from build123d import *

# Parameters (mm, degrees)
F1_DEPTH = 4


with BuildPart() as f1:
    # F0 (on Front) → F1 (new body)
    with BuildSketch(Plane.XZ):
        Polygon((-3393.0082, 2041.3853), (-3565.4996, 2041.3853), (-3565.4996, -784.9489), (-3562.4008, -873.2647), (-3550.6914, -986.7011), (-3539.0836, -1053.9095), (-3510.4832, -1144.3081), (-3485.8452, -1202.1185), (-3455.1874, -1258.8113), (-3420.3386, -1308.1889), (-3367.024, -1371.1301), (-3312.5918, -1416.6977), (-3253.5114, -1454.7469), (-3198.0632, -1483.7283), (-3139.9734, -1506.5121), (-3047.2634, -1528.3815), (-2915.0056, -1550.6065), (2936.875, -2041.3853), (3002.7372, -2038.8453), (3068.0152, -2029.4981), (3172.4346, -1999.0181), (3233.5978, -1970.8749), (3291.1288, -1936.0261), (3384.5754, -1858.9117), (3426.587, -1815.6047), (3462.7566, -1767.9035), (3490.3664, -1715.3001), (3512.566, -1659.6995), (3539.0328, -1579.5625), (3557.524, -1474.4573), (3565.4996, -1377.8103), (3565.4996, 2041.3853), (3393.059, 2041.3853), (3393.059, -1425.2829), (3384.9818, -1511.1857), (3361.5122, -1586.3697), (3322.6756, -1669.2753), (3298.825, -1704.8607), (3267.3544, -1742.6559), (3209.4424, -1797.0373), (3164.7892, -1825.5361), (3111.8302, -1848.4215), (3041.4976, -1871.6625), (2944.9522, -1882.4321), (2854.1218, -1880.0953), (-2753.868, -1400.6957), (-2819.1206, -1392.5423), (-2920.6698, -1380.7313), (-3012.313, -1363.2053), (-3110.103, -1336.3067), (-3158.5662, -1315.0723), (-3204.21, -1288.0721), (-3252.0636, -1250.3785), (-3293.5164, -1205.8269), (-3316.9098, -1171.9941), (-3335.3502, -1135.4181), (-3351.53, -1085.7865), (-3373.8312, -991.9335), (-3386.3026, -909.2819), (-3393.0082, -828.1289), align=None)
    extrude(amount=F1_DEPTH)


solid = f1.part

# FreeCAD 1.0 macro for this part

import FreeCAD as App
import Part
import Sketcher
Q = App.Units.Quantity


def add_polygon(sketch, points):
    """Adds a closed chain of lines whose ends are joined by coincident constraints."""
    first, n = sketch.GeometryCount, len(points)
    for a, b in zip(points, points[1:] + points[:1]):
        sketch.addGeometry(Part.LineSegment(App.Vector(*a, 0), App.Vector(*b, 0)), False)
    for i in range(n):
        sketch.addConstraint(Sketcher.Constraint("Coincident", first + i, 2, first + (i + 1) % n, 1))

doc = App.newDocument("Part")
params = doc.addObject("Spreadsheet::Sheet", "Params")
for row, (alias, value) in enumerate([
    ("sketch1_width", "6.791 in"),
    ("sketch1_width2", "6.789 in"),
    ("sketch1_height", "111.273 in"),
    ("sketch1_height2", "134.614 in"),
    ("sketch1_height3", "136.483 in"),
    ("pad1_length", "4 mm"),
], start=1):
    params.set(f"A{row}", alias)
    params.set(f"B{row}", "=" + value)
    params.setAlias(f"B{row}", alias)

body = doc.addObject("PartDesign::Body", "Body")

# Sketch on XZ plane
sketch1 = body.newObject("Sketcher::SketchObject", "Sketch")
sketch1.AttachmentSupport = (doc.getObject("XZ_Plane"), [""])
sketch1.MapMode = "FlatFace"
add_polygon(sketch1, [(-3393, 2041), (-3565, 2041), (-3565, -785), (-3562, -873), (-3551, -987), (-3539, -1054), (-3510, -1144), (-3486, -1202), (-3455, -1259), (-3420, -1308), (-3367, -1371), (-3313, -1417), (-3254, -1455), (-3198, -1484), (-3140, -1507), (-3047, -1528), (-2915, -1551), (2937, -2041), (3003, -2039), (3068, -2029), (3172, -1999), (3234, -1971), (3291, -1936), (3385, -1859), (3427, -1816), (3463, -1768), (3490, -1715), (3513, -1660), (3539, -1580), (3558, -1474), (3565, -1378), (3565, 2041), (3393, 2041), (3393, -1425), (3385, -1511), (3362, -1586), (3323, -1669), (3299, -1705), (3267, -1743), (3209, -1797), (3165, -1826), (3112, -1848), (3041, -1872), (2945, -1882), (2854, -1880), (-2754, -1401), (-2819, -1393), (-2921, -1381), (-3012, -1363), (-3110, -1336), (-3159, -1315), (-3204, -1288), (-3252, -1250), (-3294, -1206), (-3317, -1172), (-3335, -1135), (-3352, -1086), (-3374, -992), (-3386, -909), (-3393, -828)])  # lines 0-59
sketch1.addConstraint([
    Sketcher.Constraint("Horizontal", 0),
    Sketcher.Constraint("Vertical", 1),
    Sketcher.Constraint("Vertical", 30),
    Sketcher.Constraint("Horizontal", 31),
    Sketcher.Constraint("Vertical", 32),
    Sketcher.Constraint("Vertical", 59),
    Sketcher.Constraint("Symmetric", 0, 2, 30, 2, -2),
    Sketcher.Constraint("DistanceY", 16, 2, 17, 2, Q("0.1 in")),
    Sketcher.Constraint("DistanceY", 18, 2, 19, 2, Q("1.2 in")),
    Sketcher.Constraint("DistanceY", 58, 2, 1, 2, Q("1.7 in")),
    Sketcher.Constraint("DistanceX", 0, 2, 0, 1, Q("6.791 in")),
    Sketcher.Constraint("DistanceX", 31, 2, 31, 1, Q("6.789 in")),
    Sketcher.Constraint("DistanceY", 1, 2, 1, 1, Q("111.273 in")),
    Sketcher.Constraint("DistanceY", 30, 1, 30, 2, Q("134.614 in")),
    Sketcher.Constraint("DistanceY", 32, 2, 32, 1, Q("136.483 in")),
    Sketcher.Constraint("DistanceX", 9, 2, -1, 1, Q("132.56 in")),
    Sketcher.Constraint("DistanceX", -1, 1, 26, 2, Q("138.29 in")),
    Sketcher.Constraint("DistanceX", -1, 1, 28, 2, Q("140.06 in")),
    Sketcher.Constraint("DistanceX", 44, 2, -1, 1, Q("108.42 in")),
    Sketcher.Constraint("DistanceX", 50, 2, -1, 1, Q("126.15 in")),
    Sketcher.Constraint("DistanceX", 55, 2, -1, 1, Q("131.95 in")),
    Sketcher.Constraint("DistanceY", 2, 2, 0, 2, Q("114.75 in")),
    Sketcher.Constraint("DistanceX", 1, 2, 4, 2, Q("1.04 in")),
    Sketcher.Constraint("DistanceX", 5, 2, 6, 2, Q("0.97 in")),
    Sketcher.Constraint("DistanceX", 3, 2, 7, 2, Q("3.76 in")),
    Sketcher.Constraint("DistanceY", 9, 2, 5, 2, Q("8.93 in")),
    Sketcher.Constraint("DistanceY", 11, 2, 8, 2, Q("5.77 in")),
    Sketcher.Constraint("DistanceX", 7, 2, 11, 2, Q("7.94 in")),
    Sketcher.Constraint("DistanceX", 11, 2, 13, 2, Q("4.47 in")),
    Sketcher.Constraint("DistanceY", 13, 2, 9, 2, Q("5.33 in")),
    Sketcher.Constraint("DistanceX", 13, 2, 14, 2, Q("3.65 in")),
    Sketcher.Constraint("DistanceX", 17, 2, 18, 2, Q("2.57 in")),
    Sketcher.Constraint("DistanceY", 18, 2, 13, 2, Q("20.59 in")),
    Sketcher.Constraint("DistanceX", 14, 2, 19, 2, Q("244.87 in")),
    Sketcher.Constraint("DistanceY", 19, 2, 21, 2, Q("2.48 in")),
    Sketcher.Constraint("DistanceX", 19, 2, 24, 2, Q("11.43 in")),
    Sketcher.Constraint("DistanceY", 21, 2, 25, 2, Q("8.69 in")),
    Sketcher.Constraint("DistanceY", 24, 2, 26, 2, Q("4.26 in")),
    Sketcher.Constraint("DistanceY", 34, 2, 33, 2, Q("2.96 in")),
    Sketcher.Constraint("DistanceX", 36, 2, 23, 2, Q("5.03 in")),
    Sketcher.Constraint("DistanceY", 23, 2, 36, 2, Q("4.36 in")),
    Sketcher.Constraint("DistanceX", 38, 2, 37, 2, Q("2.28 in")),
    Sketcher.Constraint("DistanceY", 38, 2, 35, 2, Q("5.03 in")),
    Sketcher.Constraint("DistanceY", 21, 2, 39, 2, Q("4.35 in")),
    Sketcher.Constraint("DistanceX", 42, 2, 40, 2, Q("6.57 in")),
    Sketcher.Constraint("DistanceY", 18, 2, 42, 2, Q("5.79 in")),
    Sketcher.Constraint("DistanceY", 16, 2, 43, 2, Q("6.35 in")),
    Sketcher.Constraint("DistanceY", 12, 2, 45, 2, Q("3.59 in")),
    Sketcher.Constraint("DistanceY", 46, 2, 47, 2, Q("0.69 in")),
    Sketcher.Constraint("DistanceX", 48, 2, 47, 2, Q("3.85 in")),
    Sketcher.Constraint("DistanceY", 12, 2, 49, 2, Q("6.64 in")),
    Sketcher.Constraint("DistanceY", 9, 2, 50, 2, Q("3.27 in")),
    Sketcher.Constraint("DistanceY", 8, 2, 52, 2, Q("4.03 in")),
    Sketcher.Constraint("DistanceY", 50, 2, 53, 2, Q("4.57 in")),
    Sketcher.Constraint("DistanceY", 53, 2, 54, 2, Q("1.44 in")),
    Sketcher.Constraint("DistanceY", 6, 2, 55, 2, Q("4.58 in")),
    Sketcher.Constraint("DistanceY", 4, 2, 56, 2, Q("2.44 in")),
    Sketcher.Constraint("DistanceX", 0, 2, -1, 1, Q("140.374 in")),
    Sketcher.Constraint("DistanceX", 2, 2, -1, 1, Q("140.252 in")),
    Sketcher.Constraint("DistanceX", 3, 2, -1, 1, Q("139.791 in")),
    Sketcher.Constraint("DistanceX", 5, 2, -1, 1, Q("138.208 in")),
    Sketcher.Constraint("DistanceX", 8, 2, -1, 1, Q("134.659 in")),
    Sketcher.Constraint("DistanceX", 10, 2, -1, 1, Q("130.417 in")),
    Sketcher.Constraint("DistanceX", 12, 2, -1, 1, Q("125.908 in")),
    Sketcher.Constraint("DistanceX", 15, 2, -1, 1, Q("114.764 in")),
    Sketcher.Constraint("DistanceX", -1, 1, 16, 2, Q("115.625 in")),
    Sketcher.Constraint("DistanceX", -1, 1, 17, 2, Q("118.218 in")),
    Sketcher.Constraint("DistanceX", -1, 1, 20, 2, Q("127.307 in")),
    Sketcher.Constraint("DistanceX", -1, 1, 21, 2, Q("129.572 in")),
    Sketcher.Constraint("DistanceX", -1, 1, 22, 2, Q("133.251 in")),
    Sketcher.Constraint("DistanceX", -1, 1, 23, 2, Q("134.905 in")),
    Sketcher.Constraint("DistanceX", -1, 1, 25, 2, Q("137.416 in")),
    Sketcher.Constraint("DistanceX", -1, 1, 27, 2, Q("139.332 in")),
    Sketcher.Constraint("DistanceY", 27, 2, -1, 1, Q("62.1875 in")),
    Sketcher.Constraint("DistanceX", -1, 1, 33, 2, Q("133.267 in")),
    Sketcher.Constraint("DistanceX", -1, 1, 34, 2, Q("132.343 in")),
    Sketcher.Constraint("DistanceX", -1, 1, 35, 2, Q("130.814 in")),
    Sketcher.Constraint("DistanceX", -1, 1, 37, 2, Q("128.636 in")),
    Sketcher.Constraint("DistanceX", -1, 1, 39, 2, Q("124.598 in")),
    Sketcher.Constraint("DistanceX", -1, 1, 40, 2, Q("122.513 in")),
    Sketcher.Constraint("DistanceX", -1, 1, 41, 2, Q("119.744 in")),
    Sketcher.Constraint("DistanceY", 41, 2, -1, 1, Q("73.6875 in")),
    Sketcher.Constraint("DistanceX", -1, 1, 43, 2, Q("112.367 in")),
    Sketcher.Constraint("DistanceX", 45, 2, -1, 1, Q("110.989 in")),
    Sketcher.Constraint("DistanceX", 46, 2, -1, 1, Q("114.987 in")),
    Sketcher.Constraint("DistanceX", 47, 2, -1, 1, Q("118.595 in")),
    Sketcher.Constraint("DistanceX", 49, 2, -1, 1, Q("124.353 in")),
    Sketcher.Constraint("DistanceX", 51, 2, -1, 1, Q("128.034 in")),
    Sketcher.Constraint("DistanceX", 52, 2, -1, 1, Q("129.666 in")),
    Sketcher.Constraint("DistanceX", 53, 2, -1, 1, Q("130.587 in")),
    Sketcher.Constraint("DistanceX", 54, 2, -1, 1, Q("131.313 in")),
    Sketcher.Constraint("DistanceX", 56, 2, -1, 1, Q("132.828 in")),
    Sketcher.Constraint("DistanceX", 57, 2, -1, 1, Q("133.319 in")),
    Sketcher.Constraint("DistanceY", 3, 2, 2, 2, Q("4.466 in")),
    Sketcher.Constraint("DistanceY", 4, 2, 3, 2, Q("2.646 in")),
    Sketcher.Constraint("DistanceY", 5, 2, 4, 2, Q("3.559 in")),
    Sketcher.Constraint("DistanceY", 6, 2, 5, 2, Q("2.276 in")),
    Sketcher.Constraint("DistanceY", 7, 2, 6, 2, Q("2.232 in")),
    Sketcher.Constraint("DistanceY", 8, 2, 7, 2, Q("1.944 in")),
    Sketcher.Constraint("DistanceY", 10, 2, 9, 2, Q("1.794 in")),
    Sketcher.Constraint("DistanceY", 12, 2, 11, 2, Q("1.141 in")),
    Sketcher.Constraint("DistanceY", 14, 2, 13, 2, Q("0.861 in")),
    Sketcher.Constraint("DistanceY", 15, 2, 14, 2, Q("0.875 in")),
    Sketcher.Constraint("DistanceY", 16, 2, 15, 2, Q("19.322 in")),
    Sketcher.Constraint("DistanceY", 19, 2, 20, 2, Q("1.108 in")),
    Sketcher.Constraint("DistanceY", 21, 2, 22, 2, Q("3.036 in")),
    Sketcher.Constraint("DistanceY", 22, 2, 23, 2, Q("1.705 in")),
    Sketcher.Constraint("DistanceY", 23, 2, 24, 2, Q("1.878 in")),
    Sketcher.Constraint("DistanceY", 26, 2, 27, 2, Q("3.155 in")),
    Sketcher.Constraint("DistanceY", 27, 2, 28, 2, Q("4.138 in")),
    Sketcher.Constraint("DistanceY", 33, 2, 32, 2, Q("3.382 in")),
    Sketcher.Constraint("DistanceY", 35, 2, 34, 2, Q("3.264 in")),
    Sketcher.Constraint("DistanceY", 37, 2, 36, 2, Q("1.488 in")),
    Sketcher.Constraint("DistanceY", 40, 2, 39, 2, Q("0.901 in")),
    Sketcher.Constraint("DistanceY", 15, 2, 44, 2, Q("5.902 in")),
    Sketcher.Constraint("DistanceY", 45, 2, 46, 2, Q("0.465 in")),
    Sketcher.Constraint("DistanceY", 47, 2, 48, 2, Q("1.059 in")),
    Sketcher.Constraint("DistanceY", 50, 2, 51, 2, Q("1.484 in")),
    Sketcher.Constraint("DistanceY", 56, 2, 57, 2, Q("3.254 in")),
])
sketch1.setExpression("Constraints[70]", "Params.sketch1_width")
sketch1.setExpression("Constraints[71]", "Params.sketch1_width2")
sketch1.setExpression("Constraints[72]", "Params.sketch1_height")
sketch1.setExpression("Constraints[73]", "Params.sketch1_height2")
sketch1.setExpression("Constraints[74]", "Params.sketch1_height3")
pad1 = body.newObject("PartDesign::Pad", "Pad")
pad1.Profile = sketch1
pad1.setExpression("Length", "Params.pad1_length")

doc.recompute()
